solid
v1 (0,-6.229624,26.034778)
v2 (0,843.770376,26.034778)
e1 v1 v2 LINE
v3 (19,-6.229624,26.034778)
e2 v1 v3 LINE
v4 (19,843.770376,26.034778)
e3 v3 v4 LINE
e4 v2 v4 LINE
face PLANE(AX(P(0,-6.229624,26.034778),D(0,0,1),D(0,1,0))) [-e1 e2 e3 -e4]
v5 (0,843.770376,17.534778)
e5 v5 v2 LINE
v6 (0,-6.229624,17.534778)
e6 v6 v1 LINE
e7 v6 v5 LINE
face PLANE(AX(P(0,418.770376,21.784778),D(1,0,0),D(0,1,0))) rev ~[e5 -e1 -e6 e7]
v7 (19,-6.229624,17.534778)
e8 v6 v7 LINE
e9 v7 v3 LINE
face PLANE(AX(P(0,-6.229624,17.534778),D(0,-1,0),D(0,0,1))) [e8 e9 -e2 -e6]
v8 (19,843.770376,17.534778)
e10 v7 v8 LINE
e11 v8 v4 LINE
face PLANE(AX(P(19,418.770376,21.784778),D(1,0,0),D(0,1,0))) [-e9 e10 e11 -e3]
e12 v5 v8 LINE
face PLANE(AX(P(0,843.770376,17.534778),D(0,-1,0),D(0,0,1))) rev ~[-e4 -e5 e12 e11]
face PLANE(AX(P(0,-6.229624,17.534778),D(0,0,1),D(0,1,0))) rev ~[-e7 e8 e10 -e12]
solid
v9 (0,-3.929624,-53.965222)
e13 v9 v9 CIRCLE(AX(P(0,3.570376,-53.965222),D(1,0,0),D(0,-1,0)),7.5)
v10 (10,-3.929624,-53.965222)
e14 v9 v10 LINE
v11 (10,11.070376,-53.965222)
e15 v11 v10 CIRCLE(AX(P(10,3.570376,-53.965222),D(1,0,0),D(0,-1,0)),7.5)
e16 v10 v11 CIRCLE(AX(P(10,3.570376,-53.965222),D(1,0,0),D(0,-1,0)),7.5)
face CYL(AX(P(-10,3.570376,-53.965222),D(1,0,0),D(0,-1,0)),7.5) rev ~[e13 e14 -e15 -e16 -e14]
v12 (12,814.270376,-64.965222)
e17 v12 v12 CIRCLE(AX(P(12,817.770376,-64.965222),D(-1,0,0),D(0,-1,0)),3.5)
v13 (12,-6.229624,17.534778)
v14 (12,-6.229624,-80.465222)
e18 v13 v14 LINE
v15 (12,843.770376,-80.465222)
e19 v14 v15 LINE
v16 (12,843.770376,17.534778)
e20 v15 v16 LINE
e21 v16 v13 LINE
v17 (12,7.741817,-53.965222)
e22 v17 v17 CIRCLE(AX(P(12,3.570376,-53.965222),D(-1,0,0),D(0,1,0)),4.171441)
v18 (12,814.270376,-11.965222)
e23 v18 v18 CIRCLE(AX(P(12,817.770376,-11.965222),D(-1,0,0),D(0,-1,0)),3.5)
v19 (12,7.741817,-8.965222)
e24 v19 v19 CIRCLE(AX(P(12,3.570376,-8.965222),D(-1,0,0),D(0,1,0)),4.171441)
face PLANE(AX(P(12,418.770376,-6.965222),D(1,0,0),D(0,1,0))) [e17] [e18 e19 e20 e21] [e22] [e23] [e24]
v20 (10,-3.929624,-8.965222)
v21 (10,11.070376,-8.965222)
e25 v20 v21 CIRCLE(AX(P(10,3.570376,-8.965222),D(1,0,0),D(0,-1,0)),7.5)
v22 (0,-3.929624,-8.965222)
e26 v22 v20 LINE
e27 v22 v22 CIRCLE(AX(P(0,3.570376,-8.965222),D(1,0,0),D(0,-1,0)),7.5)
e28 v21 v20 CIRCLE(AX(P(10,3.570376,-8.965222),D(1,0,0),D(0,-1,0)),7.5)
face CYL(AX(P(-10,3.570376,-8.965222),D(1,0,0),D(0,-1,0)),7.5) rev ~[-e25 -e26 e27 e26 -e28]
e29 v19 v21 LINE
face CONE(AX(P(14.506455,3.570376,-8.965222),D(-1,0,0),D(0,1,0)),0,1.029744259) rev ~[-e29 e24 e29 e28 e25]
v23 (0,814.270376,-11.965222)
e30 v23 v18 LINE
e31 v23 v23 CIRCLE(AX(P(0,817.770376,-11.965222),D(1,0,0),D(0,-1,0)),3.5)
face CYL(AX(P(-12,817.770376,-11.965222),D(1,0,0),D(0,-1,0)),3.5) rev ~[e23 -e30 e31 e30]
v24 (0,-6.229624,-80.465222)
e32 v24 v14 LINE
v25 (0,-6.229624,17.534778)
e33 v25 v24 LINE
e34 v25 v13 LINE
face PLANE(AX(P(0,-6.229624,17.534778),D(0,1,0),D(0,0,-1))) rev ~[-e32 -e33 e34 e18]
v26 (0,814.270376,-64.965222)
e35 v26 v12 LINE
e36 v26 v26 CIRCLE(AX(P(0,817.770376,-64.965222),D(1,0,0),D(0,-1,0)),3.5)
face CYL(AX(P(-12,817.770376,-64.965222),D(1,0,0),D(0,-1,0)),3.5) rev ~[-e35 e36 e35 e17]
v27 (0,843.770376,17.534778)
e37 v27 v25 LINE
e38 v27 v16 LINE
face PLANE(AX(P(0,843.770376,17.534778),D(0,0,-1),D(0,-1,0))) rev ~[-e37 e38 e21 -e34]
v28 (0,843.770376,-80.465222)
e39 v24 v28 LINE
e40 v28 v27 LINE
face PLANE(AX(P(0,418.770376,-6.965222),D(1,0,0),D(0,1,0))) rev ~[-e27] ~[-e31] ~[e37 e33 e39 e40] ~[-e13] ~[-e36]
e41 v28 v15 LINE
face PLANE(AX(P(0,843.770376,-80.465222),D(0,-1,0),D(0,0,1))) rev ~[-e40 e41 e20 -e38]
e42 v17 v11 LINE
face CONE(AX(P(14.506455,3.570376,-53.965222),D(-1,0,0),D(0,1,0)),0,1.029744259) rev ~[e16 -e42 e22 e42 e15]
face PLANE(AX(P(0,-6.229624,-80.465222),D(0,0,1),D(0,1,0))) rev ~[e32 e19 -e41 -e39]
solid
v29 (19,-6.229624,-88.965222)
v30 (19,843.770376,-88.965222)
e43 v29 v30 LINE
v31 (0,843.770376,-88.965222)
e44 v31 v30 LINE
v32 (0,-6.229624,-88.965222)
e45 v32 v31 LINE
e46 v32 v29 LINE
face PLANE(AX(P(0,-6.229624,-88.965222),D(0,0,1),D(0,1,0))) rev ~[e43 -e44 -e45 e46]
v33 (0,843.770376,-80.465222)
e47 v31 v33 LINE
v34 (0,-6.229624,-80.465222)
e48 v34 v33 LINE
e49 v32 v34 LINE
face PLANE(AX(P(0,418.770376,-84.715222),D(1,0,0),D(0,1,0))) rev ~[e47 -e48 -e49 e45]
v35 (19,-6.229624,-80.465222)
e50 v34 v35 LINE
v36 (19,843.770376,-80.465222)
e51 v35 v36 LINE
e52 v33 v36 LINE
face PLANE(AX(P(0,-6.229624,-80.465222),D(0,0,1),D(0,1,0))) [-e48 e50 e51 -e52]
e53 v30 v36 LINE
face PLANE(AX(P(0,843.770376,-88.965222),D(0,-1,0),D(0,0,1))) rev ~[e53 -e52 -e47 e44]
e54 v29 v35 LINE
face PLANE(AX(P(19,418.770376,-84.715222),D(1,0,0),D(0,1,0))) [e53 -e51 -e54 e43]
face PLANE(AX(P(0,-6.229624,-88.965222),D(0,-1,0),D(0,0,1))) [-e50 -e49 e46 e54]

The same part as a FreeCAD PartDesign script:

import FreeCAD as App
import Part
import Sketcher

doc = App.newDocument("Part")
body = doc.addObject("PartDesign::Body", "Body")

sketch1 = body.newObject("Sketcher::SketchObject", "Sketch")
sketch1.AttachmentSupport = (doc.getObject("YZ_Plane"), [""])
sketch1.MapMode = "FlatFace"
sketch1.addGeometry(Part.LineSegment(App.Vector(-6, 26, 0), App.Vector(-6, 18, 0)), False)
sketch1.addGeometry(Part.LineSegment(App.Vector(-6, 18, 0), App.Vector(844, 18, 0)), False)
sketch1.addGeometry(Part.LineSegment(App.Vector(844, 18, 0), App.Vector(844, 26, 0)), False)
sketch1.addGeometry(Part.LineSegment(App.Vector(844, 26, 0), App.Vector(-6, 26, 0)), False)
sketch1.addConstraint(Sketcher.Constraint("Coincident", 0, 2, 1, 1))
sketch1.addConstraint(Sketcher.Constraint("Coincident", 1, 2, 2, 1))
sketch1.addConstraint(Sketcher.Constraint("Coincident", 2, 2, 3, 1))
sketch1.addConstraint(Sketcher.Constraint("Coincident", 3, 2, 0, 1))
sketch1.addConstraint(Sketcher.Constraint("Vertical", 0))
sketch1.addConstraint(Sketcher.Constraint("Horizontal", 1))
sketch1.addConstraint(Sketcher.Constraint("Vertical", 2))
sketch1.addConstraint(Sketcher.Constraint("Horizontal", 3))
sketch1.addConstraint(Sketcher.Constraint("DistanceX", 1, 1, 1, 2, 850.0))
sketch1.addConstraint(Sketcher.Constraint("DistanceY", 0, 2, 0, 1, 8.5))
sketch1.addConstraint(Sketcher.Constraint("DistanceX", 0, 2, -1, 1, 6.229624))
sketch1.addConstraint(Sketcher.Constraint("DistanceY", -1, 1, 0, 2, 17.534778))
pad1 = body.newObject("PartDesign::Pad", "Pad")
pad1.Profile = sketch1
pad1.Length = 19
body2 = doc.addObject("PartDesign::Body", "Body001")

sketch2 = body2.newObject("Sketcher::SketchObject", "Sketch001")
sketch2.AttachmentSupport = (doc.getObject("YZ_Plane001"), [""])
sketch2.MapMode = "FlatFace"
sketch2.addGeometry(Part.LineSegment(App.Vector(-6, -80, 0), App.Vector(-6, -89, 0)), False)
sketch2.addGeometry(Part.LineSegment(App.Vector(-6, -89, 0), App.Vector(844, -89, 0)), False)
sketch2.addGeometry(Part.LineSegment(App.Vector(844, -89, 0), App.Vector(844, -80, 0)), False)
sketch2.addGeometry(Part.LineSegment(App.Vector(844, -80, 0), App.Vector(-6, -80, 0)), False)
sketch2.addConstraint(Sketcher.Constraint("Coincident", 0, 2, 1, 1))
sketch2.addConstraint(Sketcher.Constraint("Coincident", 1, 2, 2, 1))
sketch2.addConstraint(Sketcher.Constraint("Coincident", 2, 2, 3, 1))
sketch2.addConstraint(Sketcher.Constraint("Coincident", 3, 2, 0, 1))
sketch2.addConstraint(Sketcher.Constraint("Vertical", 0))
sketch2.addConstraint(Sketcher.Constraint("Horizontal", 1))
sketch2.addConstraint(Sketcher.Constraint("Vertical", 2))
sketch2.addConstraint(Sketcher.Constraint("Horizontal", 3))
sketch2.addConstraint(Sketcher.Constraint("DistanceX", 1, 1, 1, 2, 850.0))
sketch2.addConstraint(Sketcher.Constraint("DistanceY", 0, 2, 0, 1, 8.5))
sketch2.addConstraint(Sketcher.Constraint("DistanceX", 0, 2, -1, 1, 6.229624))
sketch2.addConstraint(Sketcher.Constraint("DistanceY", 0, 2, -1, 1, 88.965222))
pad2 = body2.newObject("PartDesign::Pad", "Pad001")
pad2.Profile = sketch2
pad2.Length = 19
body3 = doc.addObject("PartDesign::Body", "Body002")

sketch3 = body3.newObject("Sketcher::SketchObject", "Sketch002")
sketch3.AttachmentSupport = (doc.getObject("YZ_Plane002"), [""])
sketch3.MapMode = "FlatFace"
sketch3.addGeometry(Part.LineSegment(App.Vector(844, 18, 0), App.Vector(-6, 18, 0)), False)
sketch3.addGeometry(Part.LineSegment(App.Vector(-6, 18, 0), App.Vector(-6, -80, 0)), False)
sketch3.addGeometry(Part.LineSegment(App.Vector(-6, -80, 0), App.Vector(844, -80, 0)), False)
sketch3.addGeometry(Part.LineSegment(App.Vector(844, -80, 0), App.Vector(844, 18, 0)), False)
sketch3.addConstraint(Sketcher.Constraint("Coincident", 0, 2, 1, 1))
sketch3.addConstraint(Sketcher.Constraint("Coincident", 1, 2, 2, 1))
sketch3.addConstraint(Sketcher.Constraint("Coincident", 2, 2, 3, 1))
sketch3.addConstraint(Sketcher.Constraint("Coincident", 3, 2, 0, 1))
sketch3.addConstraint(Sketcher.Constraint("Horizontal", 0))
sketch3.addConstraint(Sketcher.Constraint("Vertical", 1))
sketch3.addConstraint(Sketcher.Constraint("Horizontal", 2))
sketch3.addConstraint(Sketcher.Constraint("Vertical", 3))
sketch3.addConstraint(Sketcher.Constraint("DistanceX", 0, 2, 0, 1, 850.0))
sketch3.addConstraint(Sketcher.Constraint("DistanceY", 1, 2, 1, 1, 98.0))
sketch3.addConstraint(Sketcher.Constraint("DistanceX", 0, 2, -1, 1, 6.229624))
sketch3.addConstraint(Sketcher.Constraint("DistanceY", -1, 1, 0, 2, 17.534778))
pad3 = body3.newObject("PartDesign::Pad", "Pad002")
pad3.Profile = sketch3
pad3.Length = 12

sketch4 = body3.newObject("Sketcher::SketchObject", "Sketch003")
sketch4.AttachmentSupport = (doc.getObject("YZ_Plane002"), [""])
sketch4.MapMode = "FlatFace"
sketch4.addGeometry(Part.Circle(App.Vector(817.8, -12, 0), App.Vector(0, 0, 1), 3.5), False)
sketch4.addGeometry(Part.Circle(App.Vector(817.8, -65, 0), App.Vector(0, 0, 1), 3.5), False)
sketch4.addConstraint(Sketcher.Constraint("Equal", 0, 1))
sketch4.addConstraint(Sketcher.Constraint("Vertical", 0, 3, 1, 3))
sketch4.addConstraint(Sketcher.Constraint("Diameter", 0, 7.0))
sketch4.addConstraint(Sketcher.Constraint("DistanceY", 1, 3, 0, 3, 53.0))
sketch4.addConstraint(Sketcher.Constraint("DistanceX", -1, 1, 0, 3, 817.770376))
sketch4.addConstraint(Sketcher.Constraint("DistanceY", 0, 3, -1, 1, 11.965222))
doc.recompute()
hole = body3.newObject("PartDesign::Hole", "Hole")
hole.Profile = sketch4
hole.ThreadType = "None"
hole.Diameter = 7
hole.DepthType = "Dimension"
hole.Depth = 12
hole.DrillPoint = "Angled"
hole.DrillPointAngle = 118
hole.Reversed = True

sketch5 = body3.newObject("Sketcher::SketchObject", "Sketch004")
sketch5.AttachmentSupport = (doc.getObject("YZ_Plane002"), [""])
sketch5.MapMode = "FlatFace"
sketch5.addGeometry(Part.Circle(App.Vector(4, -54, 0), App.Vector(0, 0, 1), 8), False)
sketch5.addGeometry(Part.Circle(App.Vector(4, -9, 0), App.Vector(0, 0, 1), 8), False)
sketch5.addConstraint(Sketcher.Constraint("Equal", 0, 1))
sketch5.addConstraint(Sketcher.Constraint("Vertical", 0, 3, 1, 3))
sketch5.addConstraint(Sketcher.Constraint("Diameter", 0, 15.0))
sketch5.addConstraint(Sketcher.Constraint("DistanceY", 0, 3, 1, 3, 45.0))
sketch5.addConstraint(Sketcher.Constraint("DistanceX", -1, 1, 0, 3, 3.570376))
sketch5.addConstraint(Sketcher.Constraint("DistanceY", 0, 3, -1, 1, 53.965222))
doc.recompute()
hole2 = body3.newObject("PartDesign::Hole", "Hole001")
hole2.Profile = sketch5
hole2.ThreadType = "None"
hole2.Diameter = 15
hole2.DepthType = "Dimension"
hole2.Depth = 10
hole2.DrillPoint = "Angled"
hole2.DrillPointAngle = 118
hole2.Reversed = True

doc.recompute()
